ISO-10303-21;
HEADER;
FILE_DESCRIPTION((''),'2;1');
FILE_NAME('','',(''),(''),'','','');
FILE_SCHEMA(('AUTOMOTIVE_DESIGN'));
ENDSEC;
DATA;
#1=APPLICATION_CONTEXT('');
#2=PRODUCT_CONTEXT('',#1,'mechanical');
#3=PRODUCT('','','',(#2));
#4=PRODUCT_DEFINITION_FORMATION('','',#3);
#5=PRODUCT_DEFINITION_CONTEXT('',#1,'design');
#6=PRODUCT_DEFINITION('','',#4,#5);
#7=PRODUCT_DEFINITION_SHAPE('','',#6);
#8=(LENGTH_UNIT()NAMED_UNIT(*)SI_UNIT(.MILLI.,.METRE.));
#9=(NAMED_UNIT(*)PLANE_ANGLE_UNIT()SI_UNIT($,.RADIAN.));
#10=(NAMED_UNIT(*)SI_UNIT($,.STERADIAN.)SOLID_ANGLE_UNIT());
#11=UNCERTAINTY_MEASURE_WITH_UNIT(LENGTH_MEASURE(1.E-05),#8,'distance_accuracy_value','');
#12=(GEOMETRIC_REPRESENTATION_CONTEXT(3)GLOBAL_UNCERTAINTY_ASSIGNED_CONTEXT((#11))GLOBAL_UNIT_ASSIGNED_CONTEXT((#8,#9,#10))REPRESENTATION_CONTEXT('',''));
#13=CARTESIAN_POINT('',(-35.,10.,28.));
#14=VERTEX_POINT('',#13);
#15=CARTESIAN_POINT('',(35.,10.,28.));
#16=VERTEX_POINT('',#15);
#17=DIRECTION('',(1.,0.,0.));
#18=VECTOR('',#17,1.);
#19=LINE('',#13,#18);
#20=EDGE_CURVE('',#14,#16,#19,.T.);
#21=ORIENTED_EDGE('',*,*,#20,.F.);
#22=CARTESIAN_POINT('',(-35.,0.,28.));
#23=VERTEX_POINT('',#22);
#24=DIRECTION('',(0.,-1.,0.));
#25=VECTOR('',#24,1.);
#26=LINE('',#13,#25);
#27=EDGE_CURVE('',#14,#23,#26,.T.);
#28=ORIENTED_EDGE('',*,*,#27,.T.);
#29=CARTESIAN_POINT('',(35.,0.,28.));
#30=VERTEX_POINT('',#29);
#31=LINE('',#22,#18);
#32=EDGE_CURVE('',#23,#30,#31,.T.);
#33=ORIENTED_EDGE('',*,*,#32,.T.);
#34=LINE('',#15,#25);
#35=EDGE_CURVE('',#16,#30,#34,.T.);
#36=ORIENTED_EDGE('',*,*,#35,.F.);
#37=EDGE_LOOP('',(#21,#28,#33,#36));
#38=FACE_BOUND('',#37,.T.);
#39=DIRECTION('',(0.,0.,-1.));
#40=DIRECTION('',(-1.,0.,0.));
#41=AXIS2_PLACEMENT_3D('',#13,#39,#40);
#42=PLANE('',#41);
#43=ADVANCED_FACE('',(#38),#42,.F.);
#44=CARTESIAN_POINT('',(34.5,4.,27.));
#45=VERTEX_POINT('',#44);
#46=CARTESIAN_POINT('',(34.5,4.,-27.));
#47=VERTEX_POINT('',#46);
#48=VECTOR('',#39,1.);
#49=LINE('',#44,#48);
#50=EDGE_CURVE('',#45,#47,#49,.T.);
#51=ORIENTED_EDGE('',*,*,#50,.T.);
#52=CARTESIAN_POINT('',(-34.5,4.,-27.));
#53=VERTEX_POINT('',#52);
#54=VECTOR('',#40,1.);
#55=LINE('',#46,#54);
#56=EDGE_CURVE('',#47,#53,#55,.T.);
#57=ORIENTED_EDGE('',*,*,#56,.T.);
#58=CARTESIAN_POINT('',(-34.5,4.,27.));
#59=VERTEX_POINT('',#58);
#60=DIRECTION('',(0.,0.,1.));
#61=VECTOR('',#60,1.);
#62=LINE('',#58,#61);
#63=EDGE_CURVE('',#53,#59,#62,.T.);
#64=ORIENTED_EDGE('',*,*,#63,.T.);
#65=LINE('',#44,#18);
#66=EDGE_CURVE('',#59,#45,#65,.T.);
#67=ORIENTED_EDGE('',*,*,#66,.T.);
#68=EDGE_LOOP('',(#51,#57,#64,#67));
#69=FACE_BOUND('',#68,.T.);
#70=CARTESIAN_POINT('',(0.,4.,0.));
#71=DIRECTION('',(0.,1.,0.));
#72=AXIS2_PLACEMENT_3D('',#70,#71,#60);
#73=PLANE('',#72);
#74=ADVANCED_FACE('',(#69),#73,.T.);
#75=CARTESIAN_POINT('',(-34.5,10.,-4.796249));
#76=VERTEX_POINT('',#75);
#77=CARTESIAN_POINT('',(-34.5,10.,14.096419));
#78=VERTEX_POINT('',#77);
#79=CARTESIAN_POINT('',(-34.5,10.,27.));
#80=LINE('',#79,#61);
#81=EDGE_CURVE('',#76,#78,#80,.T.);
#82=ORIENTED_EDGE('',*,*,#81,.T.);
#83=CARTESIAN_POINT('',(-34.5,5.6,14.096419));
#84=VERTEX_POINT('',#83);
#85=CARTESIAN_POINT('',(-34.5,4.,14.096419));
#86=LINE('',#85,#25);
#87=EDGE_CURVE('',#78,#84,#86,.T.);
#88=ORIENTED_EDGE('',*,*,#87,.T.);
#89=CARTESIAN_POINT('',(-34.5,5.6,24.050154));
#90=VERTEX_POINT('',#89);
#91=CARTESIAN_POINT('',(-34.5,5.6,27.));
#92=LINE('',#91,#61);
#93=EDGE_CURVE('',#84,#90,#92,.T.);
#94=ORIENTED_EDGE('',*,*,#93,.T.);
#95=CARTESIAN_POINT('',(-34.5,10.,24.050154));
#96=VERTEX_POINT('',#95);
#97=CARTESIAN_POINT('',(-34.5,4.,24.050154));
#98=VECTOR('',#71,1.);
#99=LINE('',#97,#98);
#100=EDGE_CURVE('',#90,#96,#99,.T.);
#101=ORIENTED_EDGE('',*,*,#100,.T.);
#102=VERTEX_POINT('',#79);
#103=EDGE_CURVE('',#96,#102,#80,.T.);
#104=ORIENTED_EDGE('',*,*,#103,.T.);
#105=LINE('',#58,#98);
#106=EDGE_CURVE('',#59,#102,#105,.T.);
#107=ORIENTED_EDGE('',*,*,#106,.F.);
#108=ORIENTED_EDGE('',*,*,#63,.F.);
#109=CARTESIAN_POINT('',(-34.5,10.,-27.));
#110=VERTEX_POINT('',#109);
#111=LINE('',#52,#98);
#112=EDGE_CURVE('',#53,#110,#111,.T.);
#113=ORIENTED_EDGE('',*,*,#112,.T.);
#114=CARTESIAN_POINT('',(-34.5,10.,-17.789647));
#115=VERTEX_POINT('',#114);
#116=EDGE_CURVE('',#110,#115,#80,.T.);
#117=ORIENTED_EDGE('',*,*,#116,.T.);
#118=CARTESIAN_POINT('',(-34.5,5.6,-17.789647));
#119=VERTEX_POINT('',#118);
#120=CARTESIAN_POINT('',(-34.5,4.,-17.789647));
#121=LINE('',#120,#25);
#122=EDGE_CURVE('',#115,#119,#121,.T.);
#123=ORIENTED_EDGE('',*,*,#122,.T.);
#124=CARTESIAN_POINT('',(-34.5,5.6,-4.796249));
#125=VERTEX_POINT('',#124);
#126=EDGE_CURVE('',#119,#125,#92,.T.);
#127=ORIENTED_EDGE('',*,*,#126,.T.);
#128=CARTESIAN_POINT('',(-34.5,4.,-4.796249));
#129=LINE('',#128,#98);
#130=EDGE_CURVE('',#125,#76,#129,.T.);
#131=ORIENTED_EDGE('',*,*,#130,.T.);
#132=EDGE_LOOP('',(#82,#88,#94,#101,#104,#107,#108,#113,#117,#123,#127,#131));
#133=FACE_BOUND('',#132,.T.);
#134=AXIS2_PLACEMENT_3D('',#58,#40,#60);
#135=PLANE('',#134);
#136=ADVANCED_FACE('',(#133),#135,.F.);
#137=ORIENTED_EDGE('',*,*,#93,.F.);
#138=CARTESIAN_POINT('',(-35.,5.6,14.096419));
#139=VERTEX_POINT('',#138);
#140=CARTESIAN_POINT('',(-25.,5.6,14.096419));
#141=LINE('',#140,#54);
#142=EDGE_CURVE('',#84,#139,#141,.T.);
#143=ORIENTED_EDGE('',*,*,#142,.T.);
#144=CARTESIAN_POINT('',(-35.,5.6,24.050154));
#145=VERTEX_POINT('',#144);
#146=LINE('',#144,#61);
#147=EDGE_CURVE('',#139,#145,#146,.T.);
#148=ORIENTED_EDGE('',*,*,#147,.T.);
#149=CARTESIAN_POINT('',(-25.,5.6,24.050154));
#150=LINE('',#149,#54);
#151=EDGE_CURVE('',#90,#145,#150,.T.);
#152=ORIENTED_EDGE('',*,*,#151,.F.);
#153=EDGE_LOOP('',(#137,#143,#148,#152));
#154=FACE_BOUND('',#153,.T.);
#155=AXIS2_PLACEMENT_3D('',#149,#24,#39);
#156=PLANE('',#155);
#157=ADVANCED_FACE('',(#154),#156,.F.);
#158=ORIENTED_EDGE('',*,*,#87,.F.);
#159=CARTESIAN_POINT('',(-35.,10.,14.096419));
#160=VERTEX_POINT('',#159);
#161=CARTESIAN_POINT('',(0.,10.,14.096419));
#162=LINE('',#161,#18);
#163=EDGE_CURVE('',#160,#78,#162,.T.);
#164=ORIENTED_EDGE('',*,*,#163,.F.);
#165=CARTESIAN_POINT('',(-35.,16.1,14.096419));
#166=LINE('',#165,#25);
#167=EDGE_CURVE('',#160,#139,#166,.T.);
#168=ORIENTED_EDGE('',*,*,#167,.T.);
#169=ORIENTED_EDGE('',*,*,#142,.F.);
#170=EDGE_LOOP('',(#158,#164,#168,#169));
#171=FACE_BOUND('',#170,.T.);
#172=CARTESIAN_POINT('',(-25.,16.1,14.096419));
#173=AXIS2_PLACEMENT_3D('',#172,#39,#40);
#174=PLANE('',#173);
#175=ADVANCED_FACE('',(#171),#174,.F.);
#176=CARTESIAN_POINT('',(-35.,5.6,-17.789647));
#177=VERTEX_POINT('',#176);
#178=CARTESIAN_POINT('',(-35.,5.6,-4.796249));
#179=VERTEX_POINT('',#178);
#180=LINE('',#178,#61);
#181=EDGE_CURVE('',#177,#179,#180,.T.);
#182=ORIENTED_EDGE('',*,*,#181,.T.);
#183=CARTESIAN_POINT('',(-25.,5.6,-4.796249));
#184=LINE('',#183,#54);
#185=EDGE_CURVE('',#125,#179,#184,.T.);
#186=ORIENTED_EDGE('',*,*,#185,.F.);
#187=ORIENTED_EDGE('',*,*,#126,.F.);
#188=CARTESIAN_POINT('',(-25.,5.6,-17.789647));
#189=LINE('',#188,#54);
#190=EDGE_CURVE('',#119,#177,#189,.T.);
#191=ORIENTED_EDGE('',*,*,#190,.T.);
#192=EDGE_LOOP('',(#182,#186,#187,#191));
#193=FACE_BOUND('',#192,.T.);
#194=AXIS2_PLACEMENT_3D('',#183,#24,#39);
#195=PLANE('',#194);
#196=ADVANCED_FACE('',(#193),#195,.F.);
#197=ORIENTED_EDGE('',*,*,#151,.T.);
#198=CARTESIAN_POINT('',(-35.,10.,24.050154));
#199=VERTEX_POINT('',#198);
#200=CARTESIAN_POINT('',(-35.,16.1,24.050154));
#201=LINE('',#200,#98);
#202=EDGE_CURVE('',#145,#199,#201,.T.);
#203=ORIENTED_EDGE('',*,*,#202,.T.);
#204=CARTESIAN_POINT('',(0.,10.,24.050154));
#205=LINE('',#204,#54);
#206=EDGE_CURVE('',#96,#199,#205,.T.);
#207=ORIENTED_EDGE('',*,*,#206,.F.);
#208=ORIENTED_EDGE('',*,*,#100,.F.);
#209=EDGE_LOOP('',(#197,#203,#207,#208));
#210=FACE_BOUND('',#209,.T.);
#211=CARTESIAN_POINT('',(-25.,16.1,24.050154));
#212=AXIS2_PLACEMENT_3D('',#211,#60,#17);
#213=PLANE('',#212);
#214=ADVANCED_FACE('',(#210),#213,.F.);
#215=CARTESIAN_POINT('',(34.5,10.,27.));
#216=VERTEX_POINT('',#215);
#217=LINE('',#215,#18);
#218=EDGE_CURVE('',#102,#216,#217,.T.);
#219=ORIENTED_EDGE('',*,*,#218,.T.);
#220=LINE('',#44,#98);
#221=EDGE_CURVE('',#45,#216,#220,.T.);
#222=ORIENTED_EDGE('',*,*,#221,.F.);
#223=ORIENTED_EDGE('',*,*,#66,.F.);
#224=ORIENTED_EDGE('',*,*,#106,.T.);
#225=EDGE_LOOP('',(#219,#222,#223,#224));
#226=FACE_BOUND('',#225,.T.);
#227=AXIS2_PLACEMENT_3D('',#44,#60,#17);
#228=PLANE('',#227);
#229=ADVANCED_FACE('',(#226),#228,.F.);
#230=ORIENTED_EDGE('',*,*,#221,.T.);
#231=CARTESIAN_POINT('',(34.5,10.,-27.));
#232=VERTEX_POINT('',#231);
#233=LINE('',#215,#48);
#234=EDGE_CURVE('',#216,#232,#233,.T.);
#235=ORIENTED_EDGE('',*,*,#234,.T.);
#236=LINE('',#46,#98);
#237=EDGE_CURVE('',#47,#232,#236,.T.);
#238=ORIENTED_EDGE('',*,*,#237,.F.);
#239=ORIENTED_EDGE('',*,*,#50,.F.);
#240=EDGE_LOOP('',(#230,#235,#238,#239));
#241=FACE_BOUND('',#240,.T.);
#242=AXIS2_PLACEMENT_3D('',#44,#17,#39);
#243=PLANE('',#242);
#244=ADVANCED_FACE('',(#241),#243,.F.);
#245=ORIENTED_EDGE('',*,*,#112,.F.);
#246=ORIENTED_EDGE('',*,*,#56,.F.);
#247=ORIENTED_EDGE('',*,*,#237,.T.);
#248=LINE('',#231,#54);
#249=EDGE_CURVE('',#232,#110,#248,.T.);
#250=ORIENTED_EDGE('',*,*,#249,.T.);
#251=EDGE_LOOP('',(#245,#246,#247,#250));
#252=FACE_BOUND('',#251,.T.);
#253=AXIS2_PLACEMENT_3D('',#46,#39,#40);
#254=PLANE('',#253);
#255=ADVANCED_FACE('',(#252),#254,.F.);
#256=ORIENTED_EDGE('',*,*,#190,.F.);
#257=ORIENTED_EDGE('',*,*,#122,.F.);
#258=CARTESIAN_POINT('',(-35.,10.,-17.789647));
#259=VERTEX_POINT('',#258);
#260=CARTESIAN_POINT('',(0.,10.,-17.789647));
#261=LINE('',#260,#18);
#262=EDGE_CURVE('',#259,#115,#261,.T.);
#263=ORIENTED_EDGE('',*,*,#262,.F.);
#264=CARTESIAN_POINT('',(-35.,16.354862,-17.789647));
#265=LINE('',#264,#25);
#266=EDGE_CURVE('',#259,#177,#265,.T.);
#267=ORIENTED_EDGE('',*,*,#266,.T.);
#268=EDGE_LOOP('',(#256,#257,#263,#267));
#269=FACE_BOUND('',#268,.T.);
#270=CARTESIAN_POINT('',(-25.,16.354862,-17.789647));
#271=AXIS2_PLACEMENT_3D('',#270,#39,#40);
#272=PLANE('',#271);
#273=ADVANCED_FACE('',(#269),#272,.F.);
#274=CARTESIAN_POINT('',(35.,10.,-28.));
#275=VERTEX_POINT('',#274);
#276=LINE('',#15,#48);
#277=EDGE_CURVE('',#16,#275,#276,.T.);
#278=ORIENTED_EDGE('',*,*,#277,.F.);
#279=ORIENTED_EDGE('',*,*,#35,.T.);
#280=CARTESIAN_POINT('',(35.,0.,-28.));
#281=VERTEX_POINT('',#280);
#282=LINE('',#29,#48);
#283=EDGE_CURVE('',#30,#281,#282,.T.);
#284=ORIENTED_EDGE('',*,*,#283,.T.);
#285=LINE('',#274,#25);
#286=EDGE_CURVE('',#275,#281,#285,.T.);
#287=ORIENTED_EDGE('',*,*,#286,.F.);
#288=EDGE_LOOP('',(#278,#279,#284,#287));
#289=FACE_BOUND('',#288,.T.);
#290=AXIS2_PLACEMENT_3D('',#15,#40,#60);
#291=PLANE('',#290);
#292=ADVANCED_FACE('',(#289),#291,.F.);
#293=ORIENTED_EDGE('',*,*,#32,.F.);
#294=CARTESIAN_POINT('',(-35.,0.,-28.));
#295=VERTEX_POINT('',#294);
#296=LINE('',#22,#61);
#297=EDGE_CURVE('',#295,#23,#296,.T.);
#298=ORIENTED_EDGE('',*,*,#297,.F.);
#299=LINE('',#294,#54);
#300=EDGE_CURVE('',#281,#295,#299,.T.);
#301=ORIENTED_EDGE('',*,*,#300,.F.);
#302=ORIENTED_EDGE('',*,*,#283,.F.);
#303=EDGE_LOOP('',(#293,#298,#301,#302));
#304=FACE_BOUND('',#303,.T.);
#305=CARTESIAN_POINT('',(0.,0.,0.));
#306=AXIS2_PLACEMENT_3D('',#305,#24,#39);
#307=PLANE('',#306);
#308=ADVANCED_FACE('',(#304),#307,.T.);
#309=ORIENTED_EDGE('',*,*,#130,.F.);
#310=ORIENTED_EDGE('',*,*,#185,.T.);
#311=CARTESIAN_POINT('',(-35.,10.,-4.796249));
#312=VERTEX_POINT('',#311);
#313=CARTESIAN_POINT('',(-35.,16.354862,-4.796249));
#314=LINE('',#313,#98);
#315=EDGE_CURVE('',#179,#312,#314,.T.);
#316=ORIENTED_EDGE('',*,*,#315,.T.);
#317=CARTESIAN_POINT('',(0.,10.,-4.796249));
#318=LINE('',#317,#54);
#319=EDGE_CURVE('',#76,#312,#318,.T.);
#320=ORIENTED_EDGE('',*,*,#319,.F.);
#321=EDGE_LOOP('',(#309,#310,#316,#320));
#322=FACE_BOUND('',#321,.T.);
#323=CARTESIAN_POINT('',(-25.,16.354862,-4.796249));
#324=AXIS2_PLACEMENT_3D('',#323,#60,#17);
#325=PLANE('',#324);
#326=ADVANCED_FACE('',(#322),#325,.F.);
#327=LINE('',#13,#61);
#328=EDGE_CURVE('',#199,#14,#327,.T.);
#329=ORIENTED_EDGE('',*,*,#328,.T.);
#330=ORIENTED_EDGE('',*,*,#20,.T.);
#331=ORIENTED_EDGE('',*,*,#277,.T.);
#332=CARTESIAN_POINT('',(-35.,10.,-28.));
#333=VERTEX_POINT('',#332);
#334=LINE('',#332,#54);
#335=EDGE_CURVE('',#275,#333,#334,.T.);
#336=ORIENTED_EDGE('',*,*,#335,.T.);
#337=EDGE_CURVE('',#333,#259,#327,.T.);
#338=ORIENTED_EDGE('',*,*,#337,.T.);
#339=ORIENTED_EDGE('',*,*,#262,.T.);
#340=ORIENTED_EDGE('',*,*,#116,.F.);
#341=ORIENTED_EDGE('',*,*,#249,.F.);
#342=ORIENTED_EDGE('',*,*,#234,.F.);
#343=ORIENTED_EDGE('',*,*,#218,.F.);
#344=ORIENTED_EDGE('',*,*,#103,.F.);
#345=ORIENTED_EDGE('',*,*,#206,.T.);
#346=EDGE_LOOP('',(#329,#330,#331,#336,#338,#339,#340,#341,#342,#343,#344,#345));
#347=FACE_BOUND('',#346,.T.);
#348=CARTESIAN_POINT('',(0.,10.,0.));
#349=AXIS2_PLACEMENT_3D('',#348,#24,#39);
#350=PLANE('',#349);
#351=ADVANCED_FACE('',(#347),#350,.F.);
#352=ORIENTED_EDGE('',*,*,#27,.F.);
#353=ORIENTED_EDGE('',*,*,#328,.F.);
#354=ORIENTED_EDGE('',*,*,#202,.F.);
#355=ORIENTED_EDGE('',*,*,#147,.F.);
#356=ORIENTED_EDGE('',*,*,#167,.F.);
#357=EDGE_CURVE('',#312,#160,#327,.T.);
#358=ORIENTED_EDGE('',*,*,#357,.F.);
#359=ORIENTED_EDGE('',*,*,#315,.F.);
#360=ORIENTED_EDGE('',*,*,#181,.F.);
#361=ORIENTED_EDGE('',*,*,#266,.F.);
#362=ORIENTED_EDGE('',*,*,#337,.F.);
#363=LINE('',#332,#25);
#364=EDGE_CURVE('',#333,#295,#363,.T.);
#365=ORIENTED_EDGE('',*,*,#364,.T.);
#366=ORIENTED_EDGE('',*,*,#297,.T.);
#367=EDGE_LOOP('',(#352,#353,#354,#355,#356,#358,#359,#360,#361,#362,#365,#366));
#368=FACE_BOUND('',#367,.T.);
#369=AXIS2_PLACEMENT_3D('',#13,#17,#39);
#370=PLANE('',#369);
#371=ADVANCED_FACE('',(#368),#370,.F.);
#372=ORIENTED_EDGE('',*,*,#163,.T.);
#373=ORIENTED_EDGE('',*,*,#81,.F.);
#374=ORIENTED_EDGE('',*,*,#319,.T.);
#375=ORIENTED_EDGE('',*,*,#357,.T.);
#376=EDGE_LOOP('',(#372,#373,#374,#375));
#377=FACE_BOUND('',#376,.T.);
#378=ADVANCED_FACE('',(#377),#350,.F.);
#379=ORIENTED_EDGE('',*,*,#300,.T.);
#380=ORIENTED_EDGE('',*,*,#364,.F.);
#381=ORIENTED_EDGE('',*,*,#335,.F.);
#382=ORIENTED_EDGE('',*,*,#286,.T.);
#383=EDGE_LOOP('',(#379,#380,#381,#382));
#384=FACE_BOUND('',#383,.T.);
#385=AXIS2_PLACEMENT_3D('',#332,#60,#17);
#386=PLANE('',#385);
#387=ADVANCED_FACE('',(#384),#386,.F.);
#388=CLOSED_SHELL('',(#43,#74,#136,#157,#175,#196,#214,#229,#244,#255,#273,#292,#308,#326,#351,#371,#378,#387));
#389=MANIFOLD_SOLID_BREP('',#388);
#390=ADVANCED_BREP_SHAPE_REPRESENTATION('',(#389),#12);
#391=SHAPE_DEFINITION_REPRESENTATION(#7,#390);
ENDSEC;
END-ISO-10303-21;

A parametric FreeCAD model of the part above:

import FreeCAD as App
import Part
import Sketcher

V = App.Vector
Q = App.Units.Quantity

doc = App.newDocument("Part")
body = doc.addObject("PartDesign::Body", "Body")

# Sketch on XZ plane
sketch1 = body.newObject("Sketcher::SketchObject", "Sketch")
sketch1.AttachmentSupport = (doc.getObject("XZ_Plane"), [""])
sketch1.MapMode = "FlatFace"
sketch1.addGeometry([
    Part.LineSegment(V(-35, -28, 0), V(-35, 28, 0)),
    Part.LineSegment(V(-35, 28, 0), V(35, 28, 0)),
    Part.LineSegment(V(35, 28, 0), V(35, -28, 0)),
    Part.LineSegment(V(35, -28, 0), V(-35, -28, 0)),
], False)
sketch1.addConstraint([
    Sketcher.Constraint("Coincident", 0, 2, 1, 1),
    Sketcher.Constraint("Coincident", 1, 2, 2, 1),
    Sketcher.Constraint("Coincident", 2, 2, 3, 1),
    Sketcher.Constraint("Coincident", 3, 2, 0, 1),
    Sketcher.Constraint("Vertical", 0),
    Sketcher.Constraint("Horizontal", 1),
    Sketcher.Constraint("Vertical", 2),
    Sketcher.Constraint("Horizontal", 3),
    Sketcher.Constraint("Symmetric", 0, 2, 2, 2, -1, 1),
    Sketcher.Constraint("DistanceX", 1, 1, 1, 2, Q("70 mm")),
    Sketcher.Constraint("DistanceY", 0, 1, 0, 2, Q("56 mm")),
])
pad1 = body.newObject("PartDesign::Pad", "Pad")
pad1.Profile = sketch1
pad1.Length = 10
pad1.Reversed = True

# Sketch on XZ plane
sketch2 = body.newObject("Sketcher::SketchObject", "Sketch001")
sketch2.AttachmentSupport = (doc.getObject("XZ_Plane"), [""])
sketch2.MapMode = "FlatFace"
sketch2.AttachmentOffset = App.Placement(V(0, 0, -10), App.Rotation())
sketch2.addGeometry([
    Part.LineSegment(V(-34, -27, 0), V(-34, 27, 0)),
    Part.LineSegment(V(-34, 27, 0), V(34, 27, 0)),
    Part.LineSegment(V(34, 27, 0), V(34, -27, 0)),
    Part.LineSegment(V(34, -27, 0), V(-34, -27, 0)),
], False)
sketch2.addConstraint([
    Sketcher.Constraint("Coincident", 0, 2, 1, 1),
    Sketcher.Constraint("Coincident", 1, 2, 2, 1),
    Sketcher.Constraint("Coincident", 2, 2, 3, 1),
    Sketcher.Constraint("Coincident", 3, 2, 0, 1),
    Sketcher.Constraint("Vertical", 0),
    Sketcher.Constraint("Horizontal", 1),
    Sketcher.Constraint("Vertical", 2),
    Sketcher.Constraint("Horizontal", 3),
    Sketcher.Constraint("Symmetric", 0, 2, 2, 2, -1, 1),
    Sketcher.Constraint("DistanceX", 1, 1, 1, 2, Q("69 mm")),
    Sketcher.Constraint("DistanceY", 0, 1, 0, 2, Q("54 mm")),
])
pocket1 = body.newObject("PartDesign::Pocket", "Pocket")
pocket1.Profile = sketch2
pocket1.Length = 6
pocket1.Reversed = True

# Sketch on YZ plane
sketch3 = body.newObject("Sketcher::SketchObject", "Sketch002")
sketch3.AttachmentSupport = (doc.getObject("YZ_Plane"), [""])
sketch3.MapMode = "FlatFace"
sketch3.AttachmentOffset = App.Placement(V(0, 0, -35), App.Rotation())
sketch3.addGeometry([
    Part.LineSegment(V(16, -18, 0), V(6, -18, 0)),  # 0
    Part.LineSegment(V(6, -18, 0), V(6, -5, 0)),  # 1
    Part.LineSegment(V(6, -5, 0), V(16, -5, 0)),  # 2
    Part.LineSegment(V(16, -5, 0), V(16, -18, 0)),  # 3
    Part.LineSegment(V(16, 14, 0), V(6, 14, 0)),  # 4
    Part.LineSegment(V(6, 14, 0), V(6, 24, 0)),  # 5
    Part.LineSegment(V(6, 24, 0), V(16, 24, 0)),  # 6
    Part.LineSegment(V(16, 24, 0), V(16, 14, 0)),  # 7
], False)
sketch3.addConstraint([
    Sketcher.Constraint("Coincident", 0, 2, 1, 1),
    Sketcher.Constraint("Coincident", 1, 2, 2, 1),
    Sketcher.Constraint("Coincident", 2, 2, 3, 1),
    Sketcher.Constraint("Coincident", 3, 2, 0, 1),
    Sketcher.Constraint("Coincident", 4, 2, 5, 1),
    Sketcher.Constraint("Coincident", 5, 2, 6, 1),
    Sketcher.Constraint("Coincident", 6, 2, 7, 1),
    Sketcher.Constraint("Coincident", 7, 2, 4, 1),
    Sketcher.Constraint("Horizontal", 0),
    Sketcher.Constraint("Vertical", 1),
    Sketcher.Constraint("Horizontal", 2),
    Sketcher.Constraint("Vertical", 3),
    Sketcher.Constraint("Horizontal", 4),
    Sketcher.Constraint("Vertical", 5),
    Sketcher.Constraint("Horizontal", 6),
    Sketcher.Constraint("Vertical", 7),
    Sketcher.Constraint("Vertical", 1, 2, 4, 2),
    Sketcher.Constraint("DistanceX", 4, 2, 4, 1, Q("10.5 mm")),
    Sketcher.Constraint("DistanceX", -1, 1, 0, 2, Q("5.6 mm")),
    Sketcher.Constraint("DistanceY", 1, 1, 1, 2, Q("12.993398 mm")),
    Sketcher.Constraint("DistanceY", 0, 2, 5, 2, Q("41.839802 mm")),
    Sketcher.Constraint("DistanceX", 0, 2, 0, 1, Q("10.754862 mm")),
    Sketcher.Constraint("DistanceY", 5, 1, 5, 2, Q("9.953735 mm")),
    Sketcher.Constraint("DistanceY", 1, 2, -1, 1, Q("4.796249 mm")),
])
pocket2 = body.newObject("PartDesign::Pocket", "Pocket001")
pocket2.Profile = sketch3
pocket2.Length = 10
pocket2.Reversed = True

doc.recompute()
